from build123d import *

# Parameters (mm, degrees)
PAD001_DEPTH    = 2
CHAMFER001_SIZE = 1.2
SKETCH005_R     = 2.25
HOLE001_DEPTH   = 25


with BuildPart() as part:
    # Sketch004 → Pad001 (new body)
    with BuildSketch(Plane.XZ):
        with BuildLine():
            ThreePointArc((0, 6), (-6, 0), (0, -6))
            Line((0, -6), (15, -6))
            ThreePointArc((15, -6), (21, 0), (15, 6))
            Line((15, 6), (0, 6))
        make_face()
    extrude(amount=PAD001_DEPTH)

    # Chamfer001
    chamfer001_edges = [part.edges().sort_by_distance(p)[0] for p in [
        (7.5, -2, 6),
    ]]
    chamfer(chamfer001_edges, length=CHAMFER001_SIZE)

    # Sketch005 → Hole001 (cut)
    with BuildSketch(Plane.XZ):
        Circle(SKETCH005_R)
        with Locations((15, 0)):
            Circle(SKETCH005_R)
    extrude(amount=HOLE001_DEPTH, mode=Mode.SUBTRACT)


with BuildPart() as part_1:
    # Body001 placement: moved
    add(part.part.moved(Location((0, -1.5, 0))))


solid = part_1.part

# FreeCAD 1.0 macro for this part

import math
import FreeCAD as App
import Part
import Sketcher


def edges_at(feature, points):
    """Names of the edges that pass closest to the given points."""
    edges = feature.Shape.Edges
    near = lambda p: min(range(len(edges)), key=lambda i: edges[i].distToShape(Part.Vertex(*p))[0])
    return sorted({f"Edge{near(p) + 1}" for p in points})

doc = App.newDocument("Part")
body = doc.addObject("PartDesign::Body", "Body")

# Sketch on XZ plane
sketch1 = body.newObject("Sketcher::SketchObject", "Sketch")
sketch1.AttachmentSupport = (doc.getObject("XZ_Plane"), [""])
sketch1.MapMode = "FlatFace"
sketch1.addGeometry([
    Part.ArcOfCircle(Part.Circle(App.Vector(0, 0, 0), App.Vector(0, 0, 1), 6), math.radians(90), math.radians(270)),
    Part.LineSegment(App.Vector(0, -6, 0), App.Vector(15, -6, 0)),
    Part.ArcOfCircle(Part.Circle(App.Vector(15, 0, 0), App.Vector(0, 0, 1), 6), math.radians(-90), math.radians(90)),
    Part.LineSegment(App.Vector(15, 6, 0), App.Vector(0, 6, 0)),
], False)
sketch1.addConstraint([
    Sketcher.Constraint("Tangent", 0, 2, 1, 1),
    Sketcher.Constraint("Tangent", 1, 2, 2, 1),
    Sketcher.Constraint("Tangent", 2, 2, 3, 1),
    Sketcher.Constraint("Tangent", 3, 2, 0, 1),
    Sketcher.Constraint("Horizontal", 1),
    Sketcher.Constraint("Horizontal", 3),
    Sketcher.Constraint("Coincident", 0, 3, -1, 1),
    Sketcher.Constraint("Radius", 0, 6.0),
    Sketcher.Constraint("DistanceX", 1, 1, 1, 2, 15.0),
])
pad1 = body.newObject("PartDesign::Pad", "Pad")
pad1.Profile = sketch1
pad1.Length = 2
doc.recompute()

chamfer = body.newObject("PartDesign::Chamfer", "Chamfer")
chamfer.Base = (pad1, edges_at(pad1, [(7.5, -2, 6)]))
chamfer.Size = 1.2

# Sketch on XZ plane
sketch2 = body.newObject("Sketcher::SketchObject", "Sketch001")
sketch2.AttachmentSupport = (doc.getObject("XZ_Plane"), [""])
sketch2.MapMode = "FlatFace"
sketch2.addGeometry([
    Part.Circle(App.Vector(0, 0, 0), App.Vector(0, 0, 1), 2.2),
    Part.Circle(App.Vector(15, 0, 0), App.Vector(0, 0, 1), 2.2),
], False)
sketch2.addConstraint([
    Sketcher.Constraint("Coincident", 0, 3, -1, 1),
    Sketcher.Constraint("Equal", 0, 1),
    Sketcher.Constraint("PointOnObject", 1, 3, -1),
    Sketcher.Constraint("Diameter", 0, 4.5),
    Sketcher.Constraint("DistanceX", -1, 1, 1, 3, 15.0),
])
pocket1 = body.newObject("PartDesign::Pocket", "Pocket")
pocket1.Profile = sketch2
pocket1.Length = 25
pocket1.Reversed = True
body2 = doc.addObject("PartDesign::Body", "Body001")
doc.recompute()

body.Placement = App.Placement(App.Vector(0, -1.5, 0), App.Rotation(App.Vector(0, 0, 1), 0))
boolean = body2.newObject("PartDesign::Boolean", "Boolean")
boolean.Type = "Fuse"
boolean.addObjects([body])

doc.recompute()
